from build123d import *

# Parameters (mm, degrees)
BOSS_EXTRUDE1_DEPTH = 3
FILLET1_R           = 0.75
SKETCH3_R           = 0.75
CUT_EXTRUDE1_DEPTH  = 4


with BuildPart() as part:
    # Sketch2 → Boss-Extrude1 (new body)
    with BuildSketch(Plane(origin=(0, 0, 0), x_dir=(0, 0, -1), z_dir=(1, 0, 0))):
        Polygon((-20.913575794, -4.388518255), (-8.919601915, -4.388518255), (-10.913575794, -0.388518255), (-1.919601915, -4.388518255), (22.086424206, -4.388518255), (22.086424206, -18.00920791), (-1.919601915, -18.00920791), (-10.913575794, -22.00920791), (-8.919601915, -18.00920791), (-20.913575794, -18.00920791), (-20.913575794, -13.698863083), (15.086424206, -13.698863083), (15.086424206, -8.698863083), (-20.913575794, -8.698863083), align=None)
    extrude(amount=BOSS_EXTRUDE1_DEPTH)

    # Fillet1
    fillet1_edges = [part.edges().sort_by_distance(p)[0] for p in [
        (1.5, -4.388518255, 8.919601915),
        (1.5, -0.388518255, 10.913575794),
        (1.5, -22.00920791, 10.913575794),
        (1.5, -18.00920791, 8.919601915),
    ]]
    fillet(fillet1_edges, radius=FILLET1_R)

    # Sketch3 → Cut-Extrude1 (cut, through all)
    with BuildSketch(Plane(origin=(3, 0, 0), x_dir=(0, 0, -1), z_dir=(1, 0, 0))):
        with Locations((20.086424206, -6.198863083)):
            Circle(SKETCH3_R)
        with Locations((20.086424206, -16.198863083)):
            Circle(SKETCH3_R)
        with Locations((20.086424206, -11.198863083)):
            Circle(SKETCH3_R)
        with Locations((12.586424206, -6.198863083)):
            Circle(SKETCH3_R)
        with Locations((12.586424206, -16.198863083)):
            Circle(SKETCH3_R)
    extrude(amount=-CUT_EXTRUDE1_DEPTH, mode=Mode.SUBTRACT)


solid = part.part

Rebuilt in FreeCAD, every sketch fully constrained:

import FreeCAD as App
import Part
import Sketcher


def edges_at(feature, points):
    """Names of the edges that pass closest to the given points."""
    edges = feature.Shape.Edges
    near = lambda p: min(range(len(edges)), key=lambda i: edges[i].distToShape(Part.Vertex(*p))[0])
    return sorted({f"Edge{near(p) + 1}" for p in points})

doc = App.newDocument("Part")
body = doc.addObject("PartDesign::Body", "Body")

sketch1 = body.newObject("Sketcher::SketchObject", "Sketch")
sketch1.AttachmentSupport = (doc.getObject("YZ_Plane"), [""])
sketch1.MapMode = "FlatFace"
sketch1.addGeometry([
    Part.LineSegment(App.Vector(-4.4, 8.9, 0), App.Vector(-4.4, 20.9, 0)),
    Part.LineSegment(App.Vector(-4.4, 20.9, 0), App.Vector(-8.7, 20.9, 0)),
    Part.LineSegment(App.Vector(-8.7, 20.9, 0), App.Vector(-8.7, -15.1, 0)),
    Part.LineSegment(App.Vector(-8.7, -15.1, 0), App.Vector(-13.7, -15.1, 0)),
    Part.LineSegment(App.Vector(-13.7, -15.1, 0), App.Vector(-13.7, 20.9, 0)),
    Part.LineSegment(App.Vector(-13.7, 20.9, 0), App.Vector(-18, 20.9, 0)),
    Part.LineSegment(App.Vector(-18, 20.9, 0), App.Vector(-18, 8.9, 0)),
    Part.LineSegment(App.Vector(-18, 8.9, 0), App.Vector(-22, 10.9, 0)),
    Part.LineSegment(App.Vector(-22, 10.9, 0), App.Vector(-18, 1.9, 0)),
    Part.LineSegment(App.Vector(-18, 1.9, 0), App.Vector(-18, -22.1, 0)),
    Part.LineSegment(App.Vector(-18, -22.1, 0), App.Vector(-4.4, -22.1, 0)),
    Part.LineSegment(App.Vector(-4.4, -22.1, 0), App.Vector(-4.4, 1.9, 0)),
    Part.LineSegment(App.Vector(-4.4, 1.9, 0), App.Vector(-0.4, 10.9, 0)),
    Part.LineSegment(App.Vector(-0.4, 10.9, 0), App.Vector(-4.4, 8.9, 0)),
], False)
sketch1.addConstraint([
    Sketcher.Constraint("Coincident", 0, 2, 1, 1),
    Sketcher.Constraint("Coincident", 1, 2, 2, 1),
    Sketcher.Constraint("Coincident", 2, 2, 3, 1),
    Sketcher.Constraint("Coincident", 3, 2, 4, 1),
    Sketcher.Constraint("Coincident", 4, 2, 5, 1),
    Sketcher.Constraint("Coincident", 5, 2, 6, 1),
    Sketcher.Constraint("Coincident", 6, 2, 7, 1),
    Sketcher.Constraint("Coincident", 7, 2, 8, 1),
    Sketcher.Constraint("Coincident", 8, 2, 9, 1),
    Sketcher.Constraint("Coincident", 9, 2, 10, 1),
    Sketcher.Constraint("Coincident", 10, 2, 11, 1),
    Sketcher.Constraint("Coincident", 11, 2, 12, 1),
    Sketcher.Constraint("Coincident", 12, 2, 13, 1),
    Sketcher.Constraint("Coincident", 13, 2, 0, 1),
    Sketcher.Constraint("Vertical", 0),
    Sketcher.Constraint("Horizontal", 1),
    Sketcher.Constraint("Vertical", 2),
    Sketcher.Constraint("Horizontal", 3),
    Sketcher.Constraint("Vertical", 4),
    Sketcher.Constraint("Horizontal", 5),
    Sketcher.Constraint("Vertical", 6),
    Sketcher.Constraint("Vertical", 9),
    Sketcher.Constraint("Horizontal", 10),
    Sketcher.Constraint("Vertical", 11),
    Sketcher.Constraint("Horizontal", 1, 2, 4, 2),
    Sketcher.Constraint("Horizontal", 8, 2, 11, 2),
    Sketcher.Constraint("Horizontal", 7, 2, 12, 2),
    Sketcher.Constraint("Horizontal", 6, 2, 13, 2),
    Sketcher.Constraint("Vertical", 6, 2, 8, 2),
    Sketcher.Constraint("Vertical", 0, 2, 10, 2),
    Sketcher.Constraint("Equal", 1, 5),
    Sketcher.Constraint("Equal", 8, 12),
    Sketcher.Constraint("DistanceX", 3, 2, 3, 1, 5.0),
    Sketcher.Constraint("DistanceY", 2, 2, 2, 1, 36.0),
    Sketcher.Constraint("DistanceX", 7, 2, 6, 2, 4.0),
    Sketcher.Constraint("DistanceY", 7, 2, 5, 2, 10.0),
    Sketcher.Constraint("DistanceY", 8, 2, 6, 2, 7.0),
    Sketcher.Constraint("DistanceY", 9, 2, 3, 2, 7.0),
    Sketcher.Constraint("DistanceX", 10, 1, 10, 2, 13.62069),
    Sketcher.Constraint("DistanceY", -1, 1, 6, 2, 8.919602),
    Sketcher.Constraint("Distance", 8, 9.843351),
    Sketcher.Constraint("DistanceX", 0, 2, -1, 1, 4.388518),
])
pad1 = body.newObject("PartDesign::Pad", "Pad")
pad1.Profile = sketch1
pad1.Length = 3
doc.recompute()

fillet = body.newObject("PartDesign::Fillet", "Fillet")
fillet.Base = (pad1, edges_at(pad1, [
    (1.5, -4.389, 8.92),
    (1.5, -0.389, 10.914),
    (1.5, -22.009, 10.914),
    (1.5, -18.009, 8.92),
]))
fillet.Radius = 0.75

sketch2 = body.newObject("Sketcher::SketchObject", "Sketch001")
sketch2.AttachmentSupport = (doc.getObject("YZ_Plane"), [""])
sketch2.MapMode = "FlatFace"
sketch2.AttachmentOffset = App.Placement(App.Vector(0, 0, 3), App.Rotation())
sketch2.addGeometry([
    Part.Circle(App.Vector(-6.2, -20.1, 0), App.Vector(0, 0, 1), 0.8),
    Part.Circle(App.Vector(-16.2, -20.1, 0), App.Vector(0, 0, 1), 0.8),
    Part.Circle(App.Vector(-11.2, -20.1, 0), App.Vector(0, 0, 1), 0.8),
    Part.Circle(App.Vector(-6.2, -12.6, 0), App.Vector(0, 0, 1), 0.8),
    Part.Circle(App.Vector(-16.2, -12.6, 0), App.Vector(0, 0, 1), 0.8),
], False)
sketch2.addConstraint([
    Sketcher.Constraint("Equal", 0, 1),
    Sketcher.Constraint("Equal", 1, 2),
    Sketcher.Constraint("Equal", 2, 3),
    Sketcher.Constraint("Equal", 3, 4),
    Sketcher.Constraint("Horizontal", 0, 3, 1, 3),
    Sketcher.Constraint("Horizontal", 1, 3, 2, 3),
    Sketcher.Constraint("Horizontal", 3, 3, 4, 3),
    Sketcher.Constraint("Vertical", 0, 3, 3, 3),
    Sketcher.Constraint("Vertical", 1, 3, 4, 3),
    Sketcher.Constraint("Diameter", 0, 1.5),
    Sketcher.Constraint("DistanceX", 1, 3, 0, 3, 10.0),
    Sketcher.Constraint("DistanceX", 1, 3, 2, 3, 5.0),
    Sketcher.Constraint("DistanceY", 0, 3, 3, 3, 7.5),
    Sketcher.Constraint("DistanceX", 0, 3, -1, 1, 6.198863),
    Sketcher.Constraint("DistanceY", 0, 3, -1, 1, 20.086424),
])
pocket1 = body.newObject("PartDesign::Pocket", "Pocket")
pocket1.Profile = sketch2
pocket1.Type = "ThroughAll"

doc.recompute()
